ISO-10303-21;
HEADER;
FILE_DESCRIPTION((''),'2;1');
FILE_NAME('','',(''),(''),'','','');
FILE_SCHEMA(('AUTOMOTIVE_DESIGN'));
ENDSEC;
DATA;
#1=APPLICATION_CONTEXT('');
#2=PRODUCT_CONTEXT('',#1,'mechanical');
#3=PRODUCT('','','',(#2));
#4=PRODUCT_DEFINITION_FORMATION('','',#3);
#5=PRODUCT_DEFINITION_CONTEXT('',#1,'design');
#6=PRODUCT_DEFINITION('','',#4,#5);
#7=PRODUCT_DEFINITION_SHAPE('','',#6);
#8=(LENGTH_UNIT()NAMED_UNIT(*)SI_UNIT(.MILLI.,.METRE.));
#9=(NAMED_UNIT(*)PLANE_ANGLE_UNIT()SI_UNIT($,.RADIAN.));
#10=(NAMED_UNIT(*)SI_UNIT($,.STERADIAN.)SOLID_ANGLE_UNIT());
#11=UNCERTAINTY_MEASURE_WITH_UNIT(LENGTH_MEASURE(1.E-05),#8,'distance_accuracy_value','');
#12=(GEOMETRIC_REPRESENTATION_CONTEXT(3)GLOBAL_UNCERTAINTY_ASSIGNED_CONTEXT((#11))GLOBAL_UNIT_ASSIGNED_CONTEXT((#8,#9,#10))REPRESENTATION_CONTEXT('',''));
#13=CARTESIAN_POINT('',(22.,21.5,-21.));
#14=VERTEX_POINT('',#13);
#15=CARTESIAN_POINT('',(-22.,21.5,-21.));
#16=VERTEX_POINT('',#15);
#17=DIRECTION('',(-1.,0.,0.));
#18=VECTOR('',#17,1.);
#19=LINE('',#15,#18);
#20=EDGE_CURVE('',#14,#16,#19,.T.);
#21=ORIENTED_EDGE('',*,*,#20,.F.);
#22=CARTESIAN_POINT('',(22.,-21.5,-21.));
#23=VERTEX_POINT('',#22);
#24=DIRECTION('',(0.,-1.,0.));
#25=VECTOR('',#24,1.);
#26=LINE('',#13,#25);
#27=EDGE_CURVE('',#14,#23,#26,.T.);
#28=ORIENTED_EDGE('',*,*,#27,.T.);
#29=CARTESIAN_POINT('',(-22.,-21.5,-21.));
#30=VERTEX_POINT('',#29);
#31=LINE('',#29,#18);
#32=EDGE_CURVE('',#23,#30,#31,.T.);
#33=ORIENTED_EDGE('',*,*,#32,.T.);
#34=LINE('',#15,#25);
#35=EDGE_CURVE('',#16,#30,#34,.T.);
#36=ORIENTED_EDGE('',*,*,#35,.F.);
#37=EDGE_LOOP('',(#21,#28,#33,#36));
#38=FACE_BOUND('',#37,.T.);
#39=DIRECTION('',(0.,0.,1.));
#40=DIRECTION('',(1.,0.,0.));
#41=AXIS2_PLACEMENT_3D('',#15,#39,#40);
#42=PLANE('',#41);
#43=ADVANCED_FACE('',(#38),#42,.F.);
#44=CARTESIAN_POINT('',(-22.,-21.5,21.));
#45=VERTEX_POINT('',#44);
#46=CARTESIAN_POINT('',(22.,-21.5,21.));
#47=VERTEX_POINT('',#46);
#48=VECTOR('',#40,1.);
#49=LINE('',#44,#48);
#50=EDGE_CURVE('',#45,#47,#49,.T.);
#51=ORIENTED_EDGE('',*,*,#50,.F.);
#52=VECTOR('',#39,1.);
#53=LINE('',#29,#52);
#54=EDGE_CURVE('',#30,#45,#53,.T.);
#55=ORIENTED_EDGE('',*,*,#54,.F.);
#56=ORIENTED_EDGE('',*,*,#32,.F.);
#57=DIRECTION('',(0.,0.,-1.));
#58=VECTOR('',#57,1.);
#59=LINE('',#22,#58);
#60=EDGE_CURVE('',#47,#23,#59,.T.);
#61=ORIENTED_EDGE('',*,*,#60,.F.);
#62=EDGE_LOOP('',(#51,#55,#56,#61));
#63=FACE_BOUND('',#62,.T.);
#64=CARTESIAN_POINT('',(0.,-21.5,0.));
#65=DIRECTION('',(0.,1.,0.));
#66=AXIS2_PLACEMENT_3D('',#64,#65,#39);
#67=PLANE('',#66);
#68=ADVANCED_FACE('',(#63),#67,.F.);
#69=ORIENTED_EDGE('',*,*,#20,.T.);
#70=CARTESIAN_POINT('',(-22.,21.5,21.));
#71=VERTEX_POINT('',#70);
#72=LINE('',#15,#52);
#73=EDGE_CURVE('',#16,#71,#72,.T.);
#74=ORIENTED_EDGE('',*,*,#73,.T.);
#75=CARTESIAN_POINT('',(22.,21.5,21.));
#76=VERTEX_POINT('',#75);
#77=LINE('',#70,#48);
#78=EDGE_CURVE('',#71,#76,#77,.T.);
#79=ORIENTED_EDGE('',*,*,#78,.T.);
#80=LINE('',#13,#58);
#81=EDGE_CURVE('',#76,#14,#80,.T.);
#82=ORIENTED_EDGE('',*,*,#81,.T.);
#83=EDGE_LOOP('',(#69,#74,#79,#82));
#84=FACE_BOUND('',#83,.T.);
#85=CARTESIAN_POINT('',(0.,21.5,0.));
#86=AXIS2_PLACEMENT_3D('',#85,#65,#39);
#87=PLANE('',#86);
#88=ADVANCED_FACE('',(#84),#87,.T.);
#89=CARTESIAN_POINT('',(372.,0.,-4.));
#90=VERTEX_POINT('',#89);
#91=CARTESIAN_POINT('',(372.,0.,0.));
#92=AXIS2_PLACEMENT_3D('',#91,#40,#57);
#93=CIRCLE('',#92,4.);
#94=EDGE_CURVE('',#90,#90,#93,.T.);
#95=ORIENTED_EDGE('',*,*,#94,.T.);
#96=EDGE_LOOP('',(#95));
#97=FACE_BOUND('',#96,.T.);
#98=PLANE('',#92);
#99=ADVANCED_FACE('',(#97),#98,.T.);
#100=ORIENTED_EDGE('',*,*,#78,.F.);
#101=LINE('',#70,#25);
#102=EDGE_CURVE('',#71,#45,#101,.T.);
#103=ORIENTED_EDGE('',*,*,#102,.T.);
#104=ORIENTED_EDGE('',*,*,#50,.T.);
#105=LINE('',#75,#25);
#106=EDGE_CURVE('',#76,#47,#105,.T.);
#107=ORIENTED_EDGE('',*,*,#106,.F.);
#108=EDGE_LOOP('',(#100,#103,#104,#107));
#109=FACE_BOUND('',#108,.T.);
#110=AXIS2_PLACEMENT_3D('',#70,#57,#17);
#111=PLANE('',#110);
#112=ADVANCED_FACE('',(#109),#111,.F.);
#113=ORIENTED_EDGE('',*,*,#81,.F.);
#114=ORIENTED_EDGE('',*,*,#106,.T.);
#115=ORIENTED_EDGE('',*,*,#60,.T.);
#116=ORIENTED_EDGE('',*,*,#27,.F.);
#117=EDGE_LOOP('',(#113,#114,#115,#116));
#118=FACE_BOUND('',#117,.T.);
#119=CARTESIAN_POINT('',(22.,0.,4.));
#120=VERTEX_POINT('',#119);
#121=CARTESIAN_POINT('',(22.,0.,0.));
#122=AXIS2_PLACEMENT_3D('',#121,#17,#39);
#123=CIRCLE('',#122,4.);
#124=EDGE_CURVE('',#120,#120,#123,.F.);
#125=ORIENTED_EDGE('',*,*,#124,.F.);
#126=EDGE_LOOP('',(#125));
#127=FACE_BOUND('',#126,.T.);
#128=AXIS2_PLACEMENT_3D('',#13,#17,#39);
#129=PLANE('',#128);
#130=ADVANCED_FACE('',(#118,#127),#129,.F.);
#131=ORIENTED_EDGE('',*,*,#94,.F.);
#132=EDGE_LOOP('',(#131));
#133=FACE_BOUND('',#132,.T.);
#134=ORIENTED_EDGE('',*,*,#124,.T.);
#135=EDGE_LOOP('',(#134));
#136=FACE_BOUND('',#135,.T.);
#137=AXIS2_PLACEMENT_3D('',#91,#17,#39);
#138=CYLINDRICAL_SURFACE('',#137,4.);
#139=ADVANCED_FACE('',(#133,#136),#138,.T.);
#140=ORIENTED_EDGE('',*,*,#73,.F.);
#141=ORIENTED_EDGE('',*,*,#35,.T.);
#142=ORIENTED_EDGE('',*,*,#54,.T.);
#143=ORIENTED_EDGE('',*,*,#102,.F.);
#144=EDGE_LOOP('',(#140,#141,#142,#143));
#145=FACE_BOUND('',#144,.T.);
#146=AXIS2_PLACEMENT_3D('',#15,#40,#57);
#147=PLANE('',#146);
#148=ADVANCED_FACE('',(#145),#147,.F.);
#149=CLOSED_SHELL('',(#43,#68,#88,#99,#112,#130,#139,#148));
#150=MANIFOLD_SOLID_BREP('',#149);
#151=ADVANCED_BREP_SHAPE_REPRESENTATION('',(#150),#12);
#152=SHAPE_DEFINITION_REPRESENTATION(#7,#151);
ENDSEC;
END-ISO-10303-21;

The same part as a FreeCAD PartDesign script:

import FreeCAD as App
import Part
import Sketcher

V = App.Vector
Q = App.Units.Quantity


def add_polygon(sketch, points):
    """Adds a closed chain of lines whose ends are joined by coincident constraints."""
    first, n = sketch.GeometryCount, len(points)
    for a, b in zip(points, points[1:] + points[:1]):
        sketch.addGeometry(Part.LineSegment(App.Vector(*a, 0), App.Vector(*b, 0)), False)
    for i in range(n):
        sketch.addConstraint(Sketcher.Constraint("Coincident", first + i, 2, first + (i + 1) % n, 1))

doc = App.newDocument("Part")
params = doc.addObject("Spreadsheet::Sheet", "Params")
for row, (alias, value) in enumerate([
    ("sketch1_width", "44 mm"),
    ("sketch1_height", "42 mm"),
    ("pad1_length", "43 mm"),
    ("sketch2_diameter", "8 mm"),
    ("pad2_length", "350 mm"),
], start=1):
    params.set(f"A{row}", alias)
    params.set(f"B{row}", "=" + value)
    params.setAlias(f"B{row}", alias)

body = doc.addObject("PartDesign::Body", "Body")

# Sketch on XZ plane
sketch1 = body.newObject("Sketcher::SketchObject", "Sketch")
sketch1.AttachmentSupport = (doc.getObject("XZ_Plane"), [""])
sketch1.MapMode = "FlatFace"
add_polygon(sketch1, [(-22, -21), (-22, 21), (22, 21), (22, -21)])  # lines 0-3
sketch1.addConstraint([
    Sketcher.Constraint("Vertical", 0),
    Sketcher.Constraint("Horizontal", 1),
    Sketcher.Constraint("Vertical", 2),
    Sketcher.Constraint("Horizontal", 3),
    Sketcher.Constraint("Symmetric", 0, 2, 2, 2, -1, 1),
    Sketcher.Constraint("DistanceX", 1, 1, 1, 2, Q("44 mm")),
    Sketcher.Constraint("DistanceY", 0, 1, 0, 2, Q("42 mm")),
])
sketch1.setExpression("Constraints[9]", "Params.sketch1_width")
sketch1.setExpression("Constraints[10]", "Params.sketch1_height")
pad1 = body.newObject("PartDesign::Pad", "Pad")
pad1.Profile = sketch1
pad1.setExpression("Length", "Params.pad1_length")
pad1.Midplane = True

# Sketch on YZ plane
sketch2 = body.newObject("Sketcher::SketchObject", "Sketch001")
sketch2.AttachmentSupport = (doc.getObject("YZ_Plane"), [""])
sketch2.MapMode = "FlatFace"
sketch2.AttachmentOffset = App.Placement(V(0, 0, 22), App.Rotation())
sketch2.addGeometry(Part.Circle(V(0, 0, 0), V(0, 0, 1), 4), False)
sketch2.addConstraint([
    Sketcher.Constraint("Coincident", 0, 3, -1, 1),
    Sketcher.Constraint("Diameter", 0, Q("8 mm")),
])
sketch2.setExpression("Constraints[1]", "Params.sketch2_diameter")
pad2 = body.newObject("PartDesign::Pad", "Pad001")
pad2.Profile = sketch2
pad2.setExpression("Length", "Params.pad2_length")

doc.recompute()
